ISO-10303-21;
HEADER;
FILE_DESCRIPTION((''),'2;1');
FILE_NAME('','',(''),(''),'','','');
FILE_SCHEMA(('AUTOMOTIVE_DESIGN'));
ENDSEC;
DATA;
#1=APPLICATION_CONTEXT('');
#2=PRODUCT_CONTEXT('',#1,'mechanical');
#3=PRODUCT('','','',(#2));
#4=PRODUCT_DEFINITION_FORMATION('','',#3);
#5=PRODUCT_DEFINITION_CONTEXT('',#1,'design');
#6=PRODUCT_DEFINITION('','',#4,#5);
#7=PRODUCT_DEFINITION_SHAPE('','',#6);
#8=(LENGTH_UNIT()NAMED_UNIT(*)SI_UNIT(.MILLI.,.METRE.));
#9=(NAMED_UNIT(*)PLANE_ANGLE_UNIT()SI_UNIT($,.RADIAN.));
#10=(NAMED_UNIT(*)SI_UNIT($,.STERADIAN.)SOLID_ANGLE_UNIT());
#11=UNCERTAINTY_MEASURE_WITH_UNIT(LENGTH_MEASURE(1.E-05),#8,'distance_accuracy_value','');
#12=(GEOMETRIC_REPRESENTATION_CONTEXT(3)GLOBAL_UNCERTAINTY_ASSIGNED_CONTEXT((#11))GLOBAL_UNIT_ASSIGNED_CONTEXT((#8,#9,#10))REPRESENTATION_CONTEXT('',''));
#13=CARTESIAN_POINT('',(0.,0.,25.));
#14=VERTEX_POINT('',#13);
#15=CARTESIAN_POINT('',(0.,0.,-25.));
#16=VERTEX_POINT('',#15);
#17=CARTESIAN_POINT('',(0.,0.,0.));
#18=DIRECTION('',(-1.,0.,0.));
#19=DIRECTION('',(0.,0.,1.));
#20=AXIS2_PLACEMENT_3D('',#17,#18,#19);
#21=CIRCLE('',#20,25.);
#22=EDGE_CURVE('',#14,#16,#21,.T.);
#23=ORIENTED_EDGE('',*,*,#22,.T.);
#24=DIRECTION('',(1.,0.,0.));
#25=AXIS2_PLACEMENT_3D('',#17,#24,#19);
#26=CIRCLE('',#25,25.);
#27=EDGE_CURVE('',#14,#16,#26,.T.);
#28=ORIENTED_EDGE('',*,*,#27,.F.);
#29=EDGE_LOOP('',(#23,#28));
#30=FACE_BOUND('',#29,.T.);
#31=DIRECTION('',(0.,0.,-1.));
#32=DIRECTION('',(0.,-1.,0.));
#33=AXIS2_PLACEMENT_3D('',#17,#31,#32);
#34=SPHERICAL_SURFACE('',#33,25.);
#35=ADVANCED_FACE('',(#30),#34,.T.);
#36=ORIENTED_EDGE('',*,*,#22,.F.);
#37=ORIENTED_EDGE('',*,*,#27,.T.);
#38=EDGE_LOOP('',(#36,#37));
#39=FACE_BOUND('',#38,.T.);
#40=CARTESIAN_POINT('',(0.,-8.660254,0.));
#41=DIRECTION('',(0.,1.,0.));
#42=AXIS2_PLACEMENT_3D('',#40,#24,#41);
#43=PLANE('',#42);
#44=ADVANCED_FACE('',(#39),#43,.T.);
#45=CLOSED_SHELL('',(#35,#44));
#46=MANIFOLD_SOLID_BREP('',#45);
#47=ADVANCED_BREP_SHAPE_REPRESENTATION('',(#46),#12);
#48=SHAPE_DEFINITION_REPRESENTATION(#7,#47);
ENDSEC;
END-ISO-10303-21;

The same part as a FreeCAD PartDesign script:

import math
import FreeCAD as App
import Part
import Sketcher

doc = App.newDocument("Part")
body = doc.addObject("PartDesign::Body", "Body")

sketch1 = doc.addObject("Sketcher::SketchObject", "Sketch")
body.addObject(sketch1)
sketch1.AttachmentSupport = (doc.YZ_Plane, [""])
sketch1.MapMode = "FlatFace"
sketch1.addGeometry([
    Part.LineSegment(App.Vector(0, -25, 0), App.Vector(0, 25, 0)),
    Part.ArcOfCircle(Part.Circle(App.Vector(0, 0, 0), App.Vector(0, 0, 1), 25), math.radians(90), math.radians(270)),
], False)
sketch1.addConstraint([
    Sketcher.Constraint("Coincident", 0, 1, 1, 2),
    Sketcher.Constraint("Coincident", 1, 1, 0, 2),
    Sketcher.Constraint("Vertical", 0),
    Sketcher.Constraint("Coincident", 1, 3, -1, 1),
    Sketcher.Constraint("PointOnObject", 0, 1, -2),
    Sketcher.Constraint("Radius", 1, 25.0),
])
revolution = doc.addObject("PartDesign::Revolution", "Revolution")
body.addObject(revolution)
revolution.Profile = sketch1
revolution.ReferenceAxis = (sketch1, ["V_Axis"])
revolution.Angle = 180
revolution.Reversed = True

doc.recompute()
